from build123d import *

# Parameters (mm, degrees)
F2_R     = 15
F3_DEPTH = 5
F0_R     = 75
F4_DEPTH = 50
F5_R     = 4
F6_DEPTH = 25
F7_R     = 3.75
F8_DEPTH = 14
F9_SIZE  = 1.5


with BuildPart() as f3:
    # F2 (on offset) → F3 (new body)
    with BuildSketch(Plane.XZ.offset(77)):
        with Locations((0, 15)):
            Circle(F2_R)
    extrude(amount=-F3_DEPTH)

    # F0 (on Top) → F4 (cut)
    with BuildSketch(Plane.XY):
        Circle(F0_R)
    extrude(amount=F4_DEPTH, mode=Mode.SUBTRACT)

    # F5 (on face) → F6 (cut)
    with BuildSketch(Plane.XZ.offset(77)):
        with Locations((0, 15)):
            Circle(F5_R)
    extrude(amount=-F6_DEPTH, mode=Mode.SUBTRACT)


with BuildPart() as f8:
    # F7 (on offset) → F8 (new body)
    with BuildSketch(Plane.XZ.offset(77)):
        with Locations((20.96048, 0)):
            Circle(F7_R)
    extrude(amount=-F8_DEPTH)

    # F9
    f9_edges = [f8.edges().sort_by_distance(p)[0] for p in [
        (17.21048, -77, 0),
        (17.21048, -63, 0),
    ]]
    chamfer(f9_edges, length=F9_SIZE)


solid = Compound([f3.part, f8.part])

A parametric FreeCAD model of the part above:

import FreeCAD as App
import Part
import Sketcher
from FreeCAD import Vector


def edges_at(feature, points):
    """Names of the edges that pass closest to the given points."""
    edges = feature.Shape.Edges
    near = lambda p: min(range(len(edges)), key=lambda i: edges[i].distToShape(Part.Vertex(*p))[0])
    return sorted({f"Edge{near(p) + 1}" for p in points})

doc = App.newDocument("Part")
body = doc.addObject("PartDesign::Body", "Body")

sketch1 = doc.addObject("Sketcher::SketchObject", "Sketch")
body.addObject(sketch1)
sketch1.AttachmentSupport = (doc.XZ_Plane, [""])
sketch1.MapMode = "FlatFace"
sketch1.AttachmentOffset = App.Placement(Vector(0, 0, 77), App.Rotation())
sketch1.addGeometry(Part.Circle(Vector(0, 15, 0), Vector(0, 0, 1), 15), False)
sketch1.addConstraint([
    Sketcher.Constraint("PointOnObject", 0, 3, -2),
    Sketcher.Constraint("Diameter", 0, 30.0),
    Sketcher.Constraint("DistanceY", -1, 1, 0, 3, 15.0),
])
pad1 = doc.addObject("PartDesign::Pad", "Pad")
body.addObject(pad1)
pad1.Profile = sketch1
pad1.Length = 5
pad1.Reversed = True

sketch2 = doc.addObject("Sketcher::SketchObject", "Sketch001")
body.addObject(sketch2)
sketch2.AttachmentSupport = (doc.XY_Plane, [""])
sketch2.MapMode = "FlatFace"
sketch2.addGeometry(Part.Circle(Vector(0, 0, 0), Vector(0, 0, 1), 75), False)
sketch2.addConstraint([
    Sketcher.Constraint("Coincident", 0, 3, -1, 1),
    Sketcher.Constraint("Diameter", 0, 150.0),
])
pocket1 = doc.addObject("PartDesign::Pocket", "Pocket")
body.addObject(pocket1)
pocket1.Profile = sketch2
pocket1.Length = 50
pocket1.Reversed = True

sketch3 = doc.addObject("Sketcher::SketchObject", "Sketch002")
body.addObject(sketch3)
sketch3.AttachmentSupport = (doc.XZ_Plane, [""])
sketch3.MapMode = "FlatFace"
sketch3.AttachmentOffset = App.Placement(Vector(0, 0, 77), App.Rotation())
sketch3.addGeometry(Part.Circle(Vector(0, 15, 0), Vector(0, 0, 1), 4), False)
sketch3.addConstraint([
    Sketcher.Constraint("PointOnObject", 0, 3, -2),
    Sketcher.Constraint("Diameter", 0, 8.0),
    Sketcher.Constraint("DistanceY", -1, 1, 0, 3, 15.0),
])
pocket2 = doc.addObject("PartDesign::Pocket", "Pocket001")
body.addObject(pocket2)
pocket2.Profile = sketch3
pocket2.Length = 25
body2 = doc.addObject("PartDesign::Body", "Body001")

sketch4 = doc.addObject("Sketcher::SketchObject", "Sketch003")
body2.addObject(sketch4)
sketch4.AttachmentSupport = (doc.getObject("XZ_Plane001"), [""])
sketch4.MapMode = "FlatFace"
sketch4.AttachmentOffset = App.Placement(Vector(0, 0, 77), App.Rotation())
sketch4.addGeometry(Part.Circle(Vector(21, 0, 0), Vector(0, 0, 1), 3.8), False)
sketch4.addConstraint([
    Sketcher.Constraint("PointOnObject", 0, 3, -1),
    Sketcher.Constraint("Diameter", 0, 7.5),
    Sketcher.Constraint("DistanceX", -1, 1, 0, 3, 20.96048),
])
pad2 = doc.addObject("PartDesign::Pad", "Pad001")
body2.addObject(pad2)
pad2.Profile = sketch4
pad2.Length = 14
pad2.Reversed = True
doc.recompute()

chamfer = doc.addObject("PartDesign::Chamfer", "Chamfer")
body2.addObject(chamfer)
chamfer.Base = (pad2, edges_at(pad2, [(17.21, -77, 0), (17.21, -63, 0)]))
chamfer.Size = 1.5

doc.recompute()
